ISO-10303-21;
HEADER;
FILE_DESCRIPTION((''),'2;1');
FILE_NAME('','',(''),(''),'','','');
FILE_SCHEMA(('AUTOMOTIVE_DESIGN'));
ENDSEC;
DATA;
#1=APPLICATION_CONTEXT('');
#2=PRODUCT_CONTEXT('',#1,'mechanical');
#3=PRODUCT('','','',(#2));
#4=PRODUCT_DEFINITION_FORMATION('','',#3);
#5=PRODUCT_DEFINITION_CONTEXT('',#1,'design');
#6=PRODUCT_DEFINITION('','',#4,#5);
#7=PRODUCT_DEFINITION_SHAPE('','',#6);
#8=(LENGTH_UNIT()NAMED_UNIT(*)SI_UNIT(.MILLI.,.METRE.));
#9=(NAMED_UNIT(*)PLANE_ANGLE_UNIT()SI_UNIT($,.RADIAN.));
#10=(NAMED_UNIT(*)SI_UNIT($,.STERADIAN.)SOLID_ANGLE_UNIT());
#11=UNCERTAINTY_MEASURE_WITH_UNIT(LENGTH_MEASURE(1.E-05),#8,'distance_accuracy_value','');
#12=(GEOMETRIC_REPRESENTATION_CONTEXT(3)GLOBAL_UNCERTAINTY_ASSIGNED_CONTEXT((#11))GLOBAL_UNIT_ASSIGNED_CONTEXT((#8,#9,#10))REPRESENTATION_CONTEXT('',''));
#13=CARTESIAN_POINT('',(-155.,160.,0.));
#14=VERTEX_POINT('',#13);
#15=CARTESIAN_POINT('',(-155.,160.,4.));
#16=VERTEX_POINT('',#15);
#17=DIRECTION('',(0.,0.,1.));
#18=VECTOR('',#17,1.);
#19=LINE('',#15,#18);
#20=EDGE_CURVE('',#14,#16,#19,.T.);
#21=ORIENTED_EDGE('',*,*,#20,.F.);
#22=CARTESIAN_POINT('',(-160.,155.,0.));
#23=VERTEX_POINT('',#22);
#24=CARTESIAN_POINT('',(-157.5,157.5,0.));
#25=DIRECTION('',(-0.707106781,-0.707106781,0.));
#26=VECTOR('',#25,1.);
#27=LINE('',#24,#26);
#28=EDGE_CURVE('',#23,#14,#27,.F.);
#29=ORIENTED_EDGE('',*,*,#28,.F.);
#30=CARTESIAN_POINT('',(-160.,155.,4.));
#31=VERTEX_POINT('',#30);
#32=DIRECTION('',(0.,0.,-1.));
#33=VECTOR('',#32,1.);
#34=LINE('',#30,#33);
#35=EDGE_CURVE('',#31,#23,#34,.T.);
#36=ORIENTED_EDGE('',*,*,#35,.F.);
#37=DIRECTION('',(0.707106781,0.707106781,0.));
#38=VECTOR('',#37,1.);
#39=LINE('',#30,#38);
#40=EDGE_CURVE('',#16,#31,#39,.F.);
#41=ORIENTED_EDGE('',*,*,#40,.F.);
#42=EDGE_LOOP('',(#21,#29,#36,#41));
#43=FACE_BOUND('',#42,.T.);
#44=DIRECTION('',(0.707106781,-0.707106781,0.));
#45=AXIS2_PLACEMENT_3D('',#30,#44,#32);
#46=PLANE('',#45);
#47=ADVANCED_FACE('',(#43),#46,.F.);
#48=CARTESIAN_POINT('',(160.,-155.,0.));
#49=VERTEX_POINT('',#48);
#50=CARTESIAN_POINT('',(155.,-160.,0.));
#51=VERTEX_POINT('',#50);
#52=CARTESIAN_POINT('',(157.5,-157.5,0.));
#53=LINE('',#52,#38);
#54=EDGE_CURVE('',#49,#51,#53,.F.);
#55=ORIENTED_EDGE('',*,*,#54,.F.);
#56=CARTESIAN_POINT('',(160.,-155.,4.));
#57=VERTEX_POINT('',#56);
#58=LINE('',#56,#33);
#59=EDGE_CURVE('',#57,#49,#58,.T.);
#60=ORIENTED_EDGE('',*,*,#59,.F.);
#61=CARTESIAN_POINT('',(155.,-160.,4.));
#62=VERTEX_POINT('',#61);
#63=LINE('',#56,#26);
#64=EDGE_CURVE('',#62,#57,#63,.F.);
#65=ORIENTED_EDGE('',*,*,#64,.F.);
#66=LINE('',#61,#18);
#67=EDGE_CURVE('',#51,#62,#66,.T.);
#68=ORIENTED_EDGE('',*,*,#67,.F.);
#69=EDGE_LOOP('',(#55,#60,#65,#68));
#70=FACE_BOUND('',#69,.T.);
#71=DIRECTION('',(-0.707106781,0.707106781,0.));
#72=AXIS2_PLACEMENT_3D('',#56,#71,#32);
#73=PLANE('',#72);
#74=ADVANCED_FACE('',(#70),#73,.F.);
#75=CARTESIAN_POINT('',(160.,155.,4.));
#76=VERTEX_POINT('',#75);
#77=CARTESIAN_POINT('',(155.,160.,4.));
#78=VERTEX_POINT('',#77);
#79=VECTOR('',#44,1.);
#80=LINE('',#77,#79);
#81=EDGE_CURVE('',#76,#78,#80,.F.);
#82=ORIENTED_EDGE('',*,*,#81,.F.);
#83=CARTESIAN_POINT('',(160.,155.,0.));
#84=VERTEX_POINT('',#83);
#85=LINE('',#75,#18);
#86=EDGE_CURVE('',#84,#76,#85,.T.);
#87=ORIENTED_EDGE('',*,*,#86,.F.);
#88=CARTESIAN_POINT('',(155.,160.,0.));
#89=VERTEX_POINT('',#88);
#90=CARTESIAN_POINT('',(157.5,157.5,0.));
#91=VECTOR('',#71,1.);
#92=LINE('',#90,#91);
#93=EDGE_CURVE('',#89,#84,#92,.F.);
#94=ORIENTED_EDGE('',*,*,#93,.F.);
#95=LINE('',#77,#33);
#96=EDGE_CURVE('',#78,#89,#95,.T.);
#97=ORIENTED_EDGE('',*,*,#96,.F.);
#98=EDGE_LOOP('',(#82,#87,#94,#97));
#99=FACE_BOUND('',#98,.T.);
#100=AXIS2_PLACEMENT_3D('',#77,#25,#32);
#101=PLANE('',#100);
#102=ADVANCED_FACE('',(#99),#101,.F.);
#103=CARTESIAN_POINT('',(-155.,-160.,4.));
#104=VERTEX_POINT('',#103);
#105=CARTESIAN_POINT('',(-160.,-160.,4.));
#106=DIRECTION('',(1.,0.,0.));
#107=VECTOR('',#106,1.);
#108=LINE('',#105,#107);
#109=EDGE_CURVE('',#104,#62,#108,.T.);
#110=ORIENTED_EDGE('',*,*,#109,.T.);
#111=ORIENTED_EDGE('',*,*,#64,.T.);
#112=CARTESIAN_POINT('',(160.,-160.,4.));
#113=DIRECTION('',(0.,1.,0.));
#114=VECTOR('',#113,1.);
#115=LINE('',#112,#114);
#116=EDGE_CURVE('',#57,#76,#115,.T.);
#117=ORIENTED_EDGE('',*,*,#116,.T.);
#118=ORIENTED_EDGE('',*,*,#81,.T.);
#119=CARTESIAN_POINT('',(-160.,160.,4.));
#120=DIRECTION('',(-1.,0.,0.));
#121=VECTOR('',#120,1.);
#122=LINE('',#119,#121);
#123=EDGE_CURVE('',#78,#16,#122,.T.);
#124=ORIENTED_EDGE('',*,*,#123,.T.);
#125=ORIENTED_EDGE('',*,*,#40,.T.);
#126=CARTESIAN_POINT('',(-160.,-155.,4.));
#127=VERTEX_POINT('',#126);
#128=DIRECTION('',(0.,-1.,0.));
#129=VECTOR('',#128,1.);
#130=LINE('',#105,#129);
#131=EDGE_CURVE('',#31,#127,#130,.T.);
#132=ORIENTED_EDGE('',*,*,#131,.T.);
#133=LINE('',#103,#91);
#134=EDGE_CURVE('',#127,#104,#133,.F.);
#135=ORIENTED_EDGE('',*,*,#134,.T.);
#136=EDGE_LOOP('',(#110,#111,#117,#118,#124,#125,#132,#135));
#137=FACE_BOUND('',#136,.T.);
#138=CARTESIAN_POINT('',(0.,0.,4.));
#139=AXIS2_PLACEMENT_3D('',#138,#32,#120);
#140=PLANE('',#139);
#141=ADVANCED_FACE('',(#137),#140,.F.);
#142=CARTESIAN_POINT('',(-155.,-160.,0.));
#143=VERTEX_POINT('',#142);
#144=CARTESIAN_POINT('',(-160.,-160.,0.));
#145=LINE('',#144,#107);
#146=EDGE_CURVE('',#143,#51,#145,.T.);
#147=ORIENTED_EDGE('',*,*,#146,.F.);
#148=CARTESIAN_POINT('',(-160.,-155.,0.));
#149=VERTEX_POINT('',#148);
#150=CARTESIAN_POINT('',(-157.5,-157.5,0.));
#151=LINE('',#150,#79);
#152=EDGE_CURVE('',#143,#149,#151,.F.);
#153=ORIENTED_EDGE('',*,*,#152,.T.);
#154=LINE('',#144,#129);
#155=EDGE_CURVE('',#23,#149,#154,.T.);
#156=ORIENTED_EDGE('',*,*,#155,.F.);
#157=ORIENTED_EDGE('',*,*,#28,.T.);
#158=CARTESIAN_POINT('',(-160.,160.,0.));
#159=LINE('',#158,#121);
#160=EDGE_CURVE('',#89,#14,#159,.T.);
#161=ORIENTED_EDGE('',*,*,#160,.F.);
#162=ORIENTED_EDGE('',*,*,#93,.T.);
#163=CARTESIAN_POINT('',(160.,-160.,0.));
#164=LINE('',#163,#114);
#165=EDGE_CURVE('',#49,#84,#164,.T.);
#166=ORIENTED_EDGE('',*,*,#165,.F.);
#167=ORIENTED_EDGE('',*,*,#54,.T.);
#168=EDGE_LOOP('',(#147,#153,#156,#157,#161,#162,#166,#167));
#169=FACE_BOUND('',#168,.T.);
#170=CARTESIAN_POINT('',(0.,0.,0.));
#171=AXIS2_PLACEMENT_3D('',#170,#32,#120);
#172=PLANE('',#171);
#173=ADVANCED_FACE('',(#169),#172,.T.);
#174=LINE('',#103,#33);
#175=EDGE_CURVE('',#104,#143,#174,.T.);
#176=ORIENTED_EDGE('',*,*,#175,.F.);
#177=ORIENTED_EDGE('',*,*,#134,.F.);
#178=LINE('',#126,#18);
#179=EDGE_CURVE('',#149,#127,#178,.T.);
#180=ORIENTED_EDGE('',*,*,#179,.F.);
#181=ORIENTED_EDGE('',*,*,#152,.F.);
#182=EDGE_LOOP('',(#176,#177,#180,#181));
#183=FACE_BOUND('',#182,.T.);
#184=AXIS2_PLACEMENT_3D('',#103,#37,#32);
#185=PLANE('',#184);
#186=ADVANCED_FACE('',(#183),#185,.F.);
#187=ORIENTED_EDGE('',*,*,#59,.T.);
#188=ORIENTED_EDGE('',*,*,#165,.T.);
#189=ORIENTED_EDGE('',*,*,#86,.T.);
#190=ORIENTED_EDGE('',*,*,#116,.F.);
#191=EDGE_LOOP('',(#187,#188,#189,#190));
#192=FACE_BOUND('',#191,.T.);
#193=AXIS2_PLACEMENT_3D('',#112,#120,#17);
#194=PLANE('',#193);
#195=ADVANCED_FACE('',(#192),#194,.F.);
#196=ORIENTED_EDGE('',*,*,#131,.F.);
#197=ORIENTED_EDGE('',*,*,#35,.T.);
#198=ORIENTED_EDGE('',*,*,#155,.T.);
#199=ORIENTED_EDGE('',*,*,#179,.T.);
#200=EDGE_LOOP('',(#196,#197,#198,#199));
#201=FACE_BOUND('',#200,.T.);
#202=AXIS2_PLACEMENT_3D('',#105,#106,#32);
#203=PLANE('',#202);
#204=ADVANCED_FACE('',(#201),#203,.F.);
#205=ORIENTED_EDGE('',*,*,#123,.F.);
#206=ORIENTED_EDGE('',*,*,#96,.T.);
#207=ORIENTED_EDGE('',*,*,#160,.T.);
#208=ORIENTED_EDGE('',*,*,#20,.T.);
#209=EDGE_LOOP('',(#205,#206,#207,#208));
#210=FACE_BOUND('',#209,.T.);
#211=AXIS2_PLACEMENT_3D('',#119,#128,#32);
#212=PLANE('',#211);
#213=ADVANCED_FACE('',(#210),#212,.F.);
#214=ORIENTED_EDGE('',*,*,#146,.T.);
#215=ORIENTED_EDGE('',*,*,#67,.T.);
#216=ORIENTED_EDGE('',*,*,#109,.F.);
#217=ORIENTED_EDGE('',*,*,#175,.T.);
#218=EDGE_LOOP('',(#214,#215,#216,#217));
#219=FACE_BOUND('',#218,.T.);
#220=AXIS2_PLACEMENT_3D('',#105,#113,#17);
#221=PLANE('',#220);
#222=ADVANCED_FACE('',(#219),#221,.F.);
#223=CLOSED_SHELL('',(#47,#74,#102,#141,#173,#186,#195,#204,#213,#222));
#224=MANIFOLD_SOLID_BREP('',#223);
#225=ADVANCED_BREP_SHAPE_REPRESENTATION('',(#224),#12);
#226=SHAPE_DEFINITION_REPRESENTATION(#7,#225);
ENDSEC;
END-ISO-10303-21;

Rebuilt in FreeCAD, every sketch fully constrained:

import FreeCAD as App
import Part
import Sketcher
from FreeCAD import Vector


def edges_at(feature, points):
    """Names of the edges that pass closest to the given points."""
    edges = feature.Shape.Edges
    near = lambda p: min(range(len(edges)), key=lambda i: edges[i].distToShape(Part.Vertex(*p))[0])
    return sorted({f"Edge{near(p) + 1}" for p in points})

doc = App.newDocument("Part")
body = doc.addObject("PartDesign::Body", "Body")

# Sketch on XY plane
sketch1 = body.newObject("Sketcher::SketchObject", "Sketch")
sketch1.AttachmentSupport = (doc.getObject("XY_Plane"), [""])
sketch1.MapMode = "FlatFace"
sketch1.addGeometry(Part.LineSegment(Vector(-160, 160, 0), Vector(-160, -160, 0)), False)
sketch1.addGeometry(Part.LineSegment(Vector(-160, -160, 0), Vector(160, -160, 0)), False)
sketch1.addGeometry(Part.LineSegment(Vector(160, -160, 0), Vector(160, 160, 0)), False)
sketch1.addGeometry(Part.LineSegment(Vector(160, 160, 0), Vector(-160, 160, 0)), False)
sketch1.addConstraint(Sketcher.Constraint("Coincident", 0, 2, 1, 1))
sketch1.addConstraint(Sketcher.Constraint("Coincident", 1, 2, 2, 1))
sketch1.addConstraint(Sketcher.Constraint("Coincident", 2, 2, 3, 1))
sketch1.addConstraint(Sketcher.Constraint("Coincident", 3, 2, 0, 1))
sketch1.addConstraint(Sketcher.Constraint("Vertical", 0))
sketch1.addConstraint(Sketcher.Constraint("Horizontal", 1))
sketch1.addConstraint(Sketcher.Constraint("Vertical", 2))
sketch1.addConstraint(Sketcher.Constraint("Horizontal", 3))
sketch1.addConstraint(Sketcher.Constraint("Symmetric", 0, 2, 2, 2, -1, 1))
sketch1.addConstraint(Sketcher.Constraint("Equal", 3, 0))
sketch1.addConstraint(Sketcher.Constraint("DistanceX", 1, 1, 1, 2, 320.0))
pad1 = body.newObject("PartDesign::Pad", "Pad")
pad1.Profile = sketch1
pad1.Length = 4
doc.recompute()

chamfer = body.newObject("PartDesign::Chamfer", "Chamfer")
chamfer.Base = (pad1, edges_at(pad1, [
    (160, -160, 2),
    (-160, -160, 2),
    (-160, 160, 2),
    (160, 160, 2),
]))
chamfer.Size = 5

doc.recompute()
